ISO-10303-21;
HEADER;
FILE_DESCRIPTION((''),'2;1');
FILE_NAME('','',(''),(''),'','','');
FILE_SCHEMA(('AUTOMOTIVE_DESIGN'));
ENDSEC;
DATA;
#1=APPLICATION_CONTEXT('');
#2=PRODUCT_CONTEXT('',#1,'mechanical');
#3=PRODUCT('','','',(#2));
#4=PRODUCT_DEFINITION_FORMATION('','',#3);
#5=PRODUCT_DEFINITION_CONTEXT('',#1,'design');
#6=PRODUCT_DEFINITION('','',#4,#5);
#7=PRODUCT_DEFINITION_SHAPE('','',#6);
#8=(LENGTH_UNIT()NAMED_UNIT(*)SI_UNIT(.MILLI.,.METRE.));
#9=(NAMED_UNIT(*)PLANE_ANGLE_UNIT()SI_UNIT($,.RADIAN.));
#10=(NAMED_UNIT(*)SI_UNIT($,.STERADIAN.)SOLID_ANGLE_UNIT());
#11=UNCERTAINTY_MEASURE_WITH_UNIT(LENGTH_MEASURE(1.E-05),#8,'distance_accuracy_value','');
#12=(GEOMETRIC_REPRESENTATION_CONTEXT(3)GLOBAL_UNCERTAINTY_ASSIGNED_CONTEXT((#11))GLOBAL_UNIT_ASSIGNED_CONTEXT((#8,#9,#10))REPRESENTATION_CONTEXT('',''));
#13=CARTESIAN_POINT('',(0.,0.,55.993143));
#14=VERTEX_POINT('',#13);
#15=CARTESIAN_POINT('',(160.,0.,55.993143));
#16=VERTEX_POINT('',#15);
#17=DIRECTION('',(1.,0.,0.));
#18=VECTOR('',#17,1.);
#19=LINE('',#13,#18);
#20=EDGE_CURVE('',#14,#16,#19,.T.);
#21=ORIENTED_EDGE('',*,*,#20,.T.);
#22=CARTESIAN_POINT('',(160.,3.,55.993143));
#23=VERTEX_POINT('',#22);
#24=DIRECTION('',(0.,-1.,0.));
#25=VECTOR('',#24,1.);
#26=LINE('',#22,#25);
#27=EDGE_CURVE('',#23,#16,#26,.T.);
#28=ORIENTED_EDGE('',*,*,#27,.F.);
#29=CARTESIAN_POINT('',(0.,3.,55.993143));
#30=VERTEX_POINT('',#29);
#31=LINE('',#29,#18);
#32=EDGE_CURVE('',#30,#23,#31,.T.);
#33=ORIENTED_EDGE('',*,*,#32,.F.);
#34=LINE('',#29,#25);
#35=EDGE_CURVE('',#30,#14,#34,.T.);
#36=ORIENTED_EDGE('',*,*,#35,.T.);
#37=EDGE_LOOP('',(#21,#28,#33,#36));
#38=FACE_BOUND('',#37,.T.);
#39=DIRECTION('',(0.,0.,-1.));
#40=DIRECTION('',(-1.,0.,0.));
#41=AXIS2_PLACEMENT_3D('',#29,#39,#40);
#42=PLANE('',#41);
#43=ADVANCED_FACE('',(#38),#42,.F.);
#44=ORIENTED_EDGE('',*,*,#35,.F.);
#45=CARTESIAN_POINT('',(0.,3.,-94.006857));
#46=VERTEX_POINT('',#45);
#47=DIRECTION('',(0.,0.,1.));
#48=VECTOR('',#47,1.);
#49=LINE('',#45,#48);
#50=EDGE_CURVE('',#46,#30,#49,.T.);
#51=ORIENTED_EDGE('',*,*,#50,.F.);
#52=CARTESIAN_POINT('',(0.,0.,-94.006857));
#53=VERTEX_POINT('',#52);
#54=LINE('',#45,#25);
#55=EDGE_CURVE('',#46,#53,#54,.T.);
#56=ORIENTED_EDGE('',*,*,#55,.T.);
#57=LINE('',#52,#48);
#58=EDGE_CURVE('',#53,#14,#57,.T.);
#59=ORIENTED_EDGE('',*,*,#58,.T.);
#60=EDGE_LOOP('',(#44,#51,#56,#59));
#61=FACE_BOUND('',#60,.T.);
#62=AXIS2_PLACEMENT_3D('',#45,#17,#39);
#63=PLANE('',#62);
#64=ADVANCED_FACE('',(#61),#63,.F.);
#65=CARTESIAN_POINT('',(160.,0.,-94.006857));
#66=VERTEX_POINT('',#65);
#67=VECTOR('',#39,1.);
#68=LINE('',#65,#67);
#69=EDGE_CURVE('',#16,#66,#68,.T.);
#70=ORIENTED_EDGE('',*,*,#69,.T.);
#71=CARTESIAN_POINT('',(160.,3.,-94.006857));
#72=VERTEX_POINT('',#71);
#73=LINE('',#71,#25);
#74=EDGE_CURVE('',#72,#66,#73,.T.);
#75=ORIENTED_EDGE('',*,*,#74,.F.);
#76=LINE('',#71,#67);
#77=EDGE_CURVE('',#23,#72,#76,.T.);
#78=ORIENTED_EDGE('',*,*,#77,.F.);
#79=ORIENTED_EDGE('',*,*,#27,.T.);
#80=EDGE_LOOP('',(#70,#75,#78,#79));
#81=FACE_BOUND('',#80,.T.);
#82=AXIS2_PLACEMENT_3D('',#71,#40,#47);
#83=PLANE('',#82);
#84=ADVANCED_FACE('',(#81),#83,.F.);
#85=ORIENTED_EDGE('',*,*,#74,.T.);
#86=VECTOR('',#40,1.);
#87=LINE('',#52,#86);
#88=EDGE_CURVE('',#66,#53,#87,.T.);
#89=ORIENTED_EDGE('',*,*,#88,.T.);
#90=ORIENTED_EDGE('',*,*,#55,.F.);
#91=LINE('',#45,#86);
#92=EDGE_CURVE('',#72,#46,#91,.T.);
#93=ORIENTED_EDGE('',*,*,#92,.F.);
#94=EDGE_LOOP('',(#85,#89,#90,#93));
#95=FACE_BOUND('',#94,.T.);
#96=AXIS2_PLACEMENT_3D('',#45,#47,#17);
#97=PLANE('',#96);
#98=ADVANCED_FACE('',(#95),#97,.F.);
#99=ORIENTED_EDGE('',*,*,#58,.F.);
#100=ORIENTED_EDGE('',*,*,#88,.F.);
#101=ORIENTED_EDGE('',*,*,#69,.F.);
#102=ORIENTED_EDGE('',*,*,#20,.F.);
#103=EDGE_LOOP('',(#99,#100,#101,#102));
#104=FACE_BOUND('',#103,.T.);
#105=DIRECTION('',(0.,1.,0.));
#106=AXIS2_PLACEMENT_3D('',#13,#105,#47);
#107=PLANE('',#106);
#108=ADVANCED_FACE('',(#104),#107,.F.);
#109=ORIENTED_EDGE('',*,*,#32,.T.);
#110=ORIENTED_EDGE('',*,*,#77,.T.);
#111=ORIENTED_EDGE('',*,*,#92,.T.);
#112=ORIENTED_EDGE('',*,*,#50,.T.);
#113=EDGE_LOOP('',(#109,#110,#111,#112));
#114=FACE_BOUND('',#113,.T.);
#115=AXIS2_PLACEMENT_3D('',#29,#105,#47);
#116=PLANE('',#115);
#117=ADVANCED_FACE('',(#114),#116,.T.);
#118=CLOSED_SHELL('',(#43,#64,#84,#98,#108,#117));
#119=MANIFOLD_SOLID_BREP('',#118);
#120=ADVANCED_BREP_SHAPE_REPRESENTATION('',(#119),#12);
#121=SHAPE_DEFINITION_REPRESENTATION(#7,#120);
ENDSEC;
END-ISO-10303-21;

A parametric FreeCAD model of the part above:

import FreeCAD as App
import Part
import Sketcher
from FreeCAD import Vector

doc = App.newDocument("Part")
body = doc.addObject("PartDesign::Body", "Body")

# Sketch on XZ plane
sketch1 = body.newObject("Sketcher::SketchObject", "Sketch")
sketch1.AttachmentSupport = (doc.getObject("XZ_Plane"), [""])
sketch1.MapMode = "FlatFace"
sketch1.addGeometry([
    Part.LineSegment(Vector(0, -94.006857, 0), Vector(0, 55.993143, 0)),
    Part.LineSegment(Vector(0, 55.993143, 0), Vector(160, 55.993143, 0)),
    Part.LineSegment(Vector(160, 55.993143, 0), Vector(160, -94.006857, 0)),
    Part.LineSegment(Vector(160, -94.006857, 0), Vector(0, -94.006857, 0)),
], False)
sketch1.addConstraint([
    Sketcher.Constraint("Coincident", 0, 2, 1, 1),
    Sketcher.Constraint("Coincident", 1, 2, 2, 1),
    Sketcher.Constraint("Coincident", 2, 2, 3, 1),
    Sketcher.Constraint("Coincident", 3, 2, 0, 1),
    Sketcher.Constraint("Vertical", 0),
    Sketcher.Constraint("Horizontal", 1),
    Sketcher.Constraint("Vertical", 2),
    Sketcher.Constraint("Horizontal", 3),
    Sketcher.Constraint("PointOnObject", 0, 2, -2),
    Sketcher.Constraint("DistanceX", 1, 1, 1, 2, 160.0),
    Sketcher.Constraint("DistanceY", 0, 1, 0, 2, 150.0),
    Sketcher.Constraint("DistanceY", -1, 1, 0, 2, 55.993143),
])
pad1 = body.newObject("PartDesign::Pad", "Pad")
pad1.Profile = sketch1
pad1.Length = 3
pad1.Reversed = True

doc.recompute()
